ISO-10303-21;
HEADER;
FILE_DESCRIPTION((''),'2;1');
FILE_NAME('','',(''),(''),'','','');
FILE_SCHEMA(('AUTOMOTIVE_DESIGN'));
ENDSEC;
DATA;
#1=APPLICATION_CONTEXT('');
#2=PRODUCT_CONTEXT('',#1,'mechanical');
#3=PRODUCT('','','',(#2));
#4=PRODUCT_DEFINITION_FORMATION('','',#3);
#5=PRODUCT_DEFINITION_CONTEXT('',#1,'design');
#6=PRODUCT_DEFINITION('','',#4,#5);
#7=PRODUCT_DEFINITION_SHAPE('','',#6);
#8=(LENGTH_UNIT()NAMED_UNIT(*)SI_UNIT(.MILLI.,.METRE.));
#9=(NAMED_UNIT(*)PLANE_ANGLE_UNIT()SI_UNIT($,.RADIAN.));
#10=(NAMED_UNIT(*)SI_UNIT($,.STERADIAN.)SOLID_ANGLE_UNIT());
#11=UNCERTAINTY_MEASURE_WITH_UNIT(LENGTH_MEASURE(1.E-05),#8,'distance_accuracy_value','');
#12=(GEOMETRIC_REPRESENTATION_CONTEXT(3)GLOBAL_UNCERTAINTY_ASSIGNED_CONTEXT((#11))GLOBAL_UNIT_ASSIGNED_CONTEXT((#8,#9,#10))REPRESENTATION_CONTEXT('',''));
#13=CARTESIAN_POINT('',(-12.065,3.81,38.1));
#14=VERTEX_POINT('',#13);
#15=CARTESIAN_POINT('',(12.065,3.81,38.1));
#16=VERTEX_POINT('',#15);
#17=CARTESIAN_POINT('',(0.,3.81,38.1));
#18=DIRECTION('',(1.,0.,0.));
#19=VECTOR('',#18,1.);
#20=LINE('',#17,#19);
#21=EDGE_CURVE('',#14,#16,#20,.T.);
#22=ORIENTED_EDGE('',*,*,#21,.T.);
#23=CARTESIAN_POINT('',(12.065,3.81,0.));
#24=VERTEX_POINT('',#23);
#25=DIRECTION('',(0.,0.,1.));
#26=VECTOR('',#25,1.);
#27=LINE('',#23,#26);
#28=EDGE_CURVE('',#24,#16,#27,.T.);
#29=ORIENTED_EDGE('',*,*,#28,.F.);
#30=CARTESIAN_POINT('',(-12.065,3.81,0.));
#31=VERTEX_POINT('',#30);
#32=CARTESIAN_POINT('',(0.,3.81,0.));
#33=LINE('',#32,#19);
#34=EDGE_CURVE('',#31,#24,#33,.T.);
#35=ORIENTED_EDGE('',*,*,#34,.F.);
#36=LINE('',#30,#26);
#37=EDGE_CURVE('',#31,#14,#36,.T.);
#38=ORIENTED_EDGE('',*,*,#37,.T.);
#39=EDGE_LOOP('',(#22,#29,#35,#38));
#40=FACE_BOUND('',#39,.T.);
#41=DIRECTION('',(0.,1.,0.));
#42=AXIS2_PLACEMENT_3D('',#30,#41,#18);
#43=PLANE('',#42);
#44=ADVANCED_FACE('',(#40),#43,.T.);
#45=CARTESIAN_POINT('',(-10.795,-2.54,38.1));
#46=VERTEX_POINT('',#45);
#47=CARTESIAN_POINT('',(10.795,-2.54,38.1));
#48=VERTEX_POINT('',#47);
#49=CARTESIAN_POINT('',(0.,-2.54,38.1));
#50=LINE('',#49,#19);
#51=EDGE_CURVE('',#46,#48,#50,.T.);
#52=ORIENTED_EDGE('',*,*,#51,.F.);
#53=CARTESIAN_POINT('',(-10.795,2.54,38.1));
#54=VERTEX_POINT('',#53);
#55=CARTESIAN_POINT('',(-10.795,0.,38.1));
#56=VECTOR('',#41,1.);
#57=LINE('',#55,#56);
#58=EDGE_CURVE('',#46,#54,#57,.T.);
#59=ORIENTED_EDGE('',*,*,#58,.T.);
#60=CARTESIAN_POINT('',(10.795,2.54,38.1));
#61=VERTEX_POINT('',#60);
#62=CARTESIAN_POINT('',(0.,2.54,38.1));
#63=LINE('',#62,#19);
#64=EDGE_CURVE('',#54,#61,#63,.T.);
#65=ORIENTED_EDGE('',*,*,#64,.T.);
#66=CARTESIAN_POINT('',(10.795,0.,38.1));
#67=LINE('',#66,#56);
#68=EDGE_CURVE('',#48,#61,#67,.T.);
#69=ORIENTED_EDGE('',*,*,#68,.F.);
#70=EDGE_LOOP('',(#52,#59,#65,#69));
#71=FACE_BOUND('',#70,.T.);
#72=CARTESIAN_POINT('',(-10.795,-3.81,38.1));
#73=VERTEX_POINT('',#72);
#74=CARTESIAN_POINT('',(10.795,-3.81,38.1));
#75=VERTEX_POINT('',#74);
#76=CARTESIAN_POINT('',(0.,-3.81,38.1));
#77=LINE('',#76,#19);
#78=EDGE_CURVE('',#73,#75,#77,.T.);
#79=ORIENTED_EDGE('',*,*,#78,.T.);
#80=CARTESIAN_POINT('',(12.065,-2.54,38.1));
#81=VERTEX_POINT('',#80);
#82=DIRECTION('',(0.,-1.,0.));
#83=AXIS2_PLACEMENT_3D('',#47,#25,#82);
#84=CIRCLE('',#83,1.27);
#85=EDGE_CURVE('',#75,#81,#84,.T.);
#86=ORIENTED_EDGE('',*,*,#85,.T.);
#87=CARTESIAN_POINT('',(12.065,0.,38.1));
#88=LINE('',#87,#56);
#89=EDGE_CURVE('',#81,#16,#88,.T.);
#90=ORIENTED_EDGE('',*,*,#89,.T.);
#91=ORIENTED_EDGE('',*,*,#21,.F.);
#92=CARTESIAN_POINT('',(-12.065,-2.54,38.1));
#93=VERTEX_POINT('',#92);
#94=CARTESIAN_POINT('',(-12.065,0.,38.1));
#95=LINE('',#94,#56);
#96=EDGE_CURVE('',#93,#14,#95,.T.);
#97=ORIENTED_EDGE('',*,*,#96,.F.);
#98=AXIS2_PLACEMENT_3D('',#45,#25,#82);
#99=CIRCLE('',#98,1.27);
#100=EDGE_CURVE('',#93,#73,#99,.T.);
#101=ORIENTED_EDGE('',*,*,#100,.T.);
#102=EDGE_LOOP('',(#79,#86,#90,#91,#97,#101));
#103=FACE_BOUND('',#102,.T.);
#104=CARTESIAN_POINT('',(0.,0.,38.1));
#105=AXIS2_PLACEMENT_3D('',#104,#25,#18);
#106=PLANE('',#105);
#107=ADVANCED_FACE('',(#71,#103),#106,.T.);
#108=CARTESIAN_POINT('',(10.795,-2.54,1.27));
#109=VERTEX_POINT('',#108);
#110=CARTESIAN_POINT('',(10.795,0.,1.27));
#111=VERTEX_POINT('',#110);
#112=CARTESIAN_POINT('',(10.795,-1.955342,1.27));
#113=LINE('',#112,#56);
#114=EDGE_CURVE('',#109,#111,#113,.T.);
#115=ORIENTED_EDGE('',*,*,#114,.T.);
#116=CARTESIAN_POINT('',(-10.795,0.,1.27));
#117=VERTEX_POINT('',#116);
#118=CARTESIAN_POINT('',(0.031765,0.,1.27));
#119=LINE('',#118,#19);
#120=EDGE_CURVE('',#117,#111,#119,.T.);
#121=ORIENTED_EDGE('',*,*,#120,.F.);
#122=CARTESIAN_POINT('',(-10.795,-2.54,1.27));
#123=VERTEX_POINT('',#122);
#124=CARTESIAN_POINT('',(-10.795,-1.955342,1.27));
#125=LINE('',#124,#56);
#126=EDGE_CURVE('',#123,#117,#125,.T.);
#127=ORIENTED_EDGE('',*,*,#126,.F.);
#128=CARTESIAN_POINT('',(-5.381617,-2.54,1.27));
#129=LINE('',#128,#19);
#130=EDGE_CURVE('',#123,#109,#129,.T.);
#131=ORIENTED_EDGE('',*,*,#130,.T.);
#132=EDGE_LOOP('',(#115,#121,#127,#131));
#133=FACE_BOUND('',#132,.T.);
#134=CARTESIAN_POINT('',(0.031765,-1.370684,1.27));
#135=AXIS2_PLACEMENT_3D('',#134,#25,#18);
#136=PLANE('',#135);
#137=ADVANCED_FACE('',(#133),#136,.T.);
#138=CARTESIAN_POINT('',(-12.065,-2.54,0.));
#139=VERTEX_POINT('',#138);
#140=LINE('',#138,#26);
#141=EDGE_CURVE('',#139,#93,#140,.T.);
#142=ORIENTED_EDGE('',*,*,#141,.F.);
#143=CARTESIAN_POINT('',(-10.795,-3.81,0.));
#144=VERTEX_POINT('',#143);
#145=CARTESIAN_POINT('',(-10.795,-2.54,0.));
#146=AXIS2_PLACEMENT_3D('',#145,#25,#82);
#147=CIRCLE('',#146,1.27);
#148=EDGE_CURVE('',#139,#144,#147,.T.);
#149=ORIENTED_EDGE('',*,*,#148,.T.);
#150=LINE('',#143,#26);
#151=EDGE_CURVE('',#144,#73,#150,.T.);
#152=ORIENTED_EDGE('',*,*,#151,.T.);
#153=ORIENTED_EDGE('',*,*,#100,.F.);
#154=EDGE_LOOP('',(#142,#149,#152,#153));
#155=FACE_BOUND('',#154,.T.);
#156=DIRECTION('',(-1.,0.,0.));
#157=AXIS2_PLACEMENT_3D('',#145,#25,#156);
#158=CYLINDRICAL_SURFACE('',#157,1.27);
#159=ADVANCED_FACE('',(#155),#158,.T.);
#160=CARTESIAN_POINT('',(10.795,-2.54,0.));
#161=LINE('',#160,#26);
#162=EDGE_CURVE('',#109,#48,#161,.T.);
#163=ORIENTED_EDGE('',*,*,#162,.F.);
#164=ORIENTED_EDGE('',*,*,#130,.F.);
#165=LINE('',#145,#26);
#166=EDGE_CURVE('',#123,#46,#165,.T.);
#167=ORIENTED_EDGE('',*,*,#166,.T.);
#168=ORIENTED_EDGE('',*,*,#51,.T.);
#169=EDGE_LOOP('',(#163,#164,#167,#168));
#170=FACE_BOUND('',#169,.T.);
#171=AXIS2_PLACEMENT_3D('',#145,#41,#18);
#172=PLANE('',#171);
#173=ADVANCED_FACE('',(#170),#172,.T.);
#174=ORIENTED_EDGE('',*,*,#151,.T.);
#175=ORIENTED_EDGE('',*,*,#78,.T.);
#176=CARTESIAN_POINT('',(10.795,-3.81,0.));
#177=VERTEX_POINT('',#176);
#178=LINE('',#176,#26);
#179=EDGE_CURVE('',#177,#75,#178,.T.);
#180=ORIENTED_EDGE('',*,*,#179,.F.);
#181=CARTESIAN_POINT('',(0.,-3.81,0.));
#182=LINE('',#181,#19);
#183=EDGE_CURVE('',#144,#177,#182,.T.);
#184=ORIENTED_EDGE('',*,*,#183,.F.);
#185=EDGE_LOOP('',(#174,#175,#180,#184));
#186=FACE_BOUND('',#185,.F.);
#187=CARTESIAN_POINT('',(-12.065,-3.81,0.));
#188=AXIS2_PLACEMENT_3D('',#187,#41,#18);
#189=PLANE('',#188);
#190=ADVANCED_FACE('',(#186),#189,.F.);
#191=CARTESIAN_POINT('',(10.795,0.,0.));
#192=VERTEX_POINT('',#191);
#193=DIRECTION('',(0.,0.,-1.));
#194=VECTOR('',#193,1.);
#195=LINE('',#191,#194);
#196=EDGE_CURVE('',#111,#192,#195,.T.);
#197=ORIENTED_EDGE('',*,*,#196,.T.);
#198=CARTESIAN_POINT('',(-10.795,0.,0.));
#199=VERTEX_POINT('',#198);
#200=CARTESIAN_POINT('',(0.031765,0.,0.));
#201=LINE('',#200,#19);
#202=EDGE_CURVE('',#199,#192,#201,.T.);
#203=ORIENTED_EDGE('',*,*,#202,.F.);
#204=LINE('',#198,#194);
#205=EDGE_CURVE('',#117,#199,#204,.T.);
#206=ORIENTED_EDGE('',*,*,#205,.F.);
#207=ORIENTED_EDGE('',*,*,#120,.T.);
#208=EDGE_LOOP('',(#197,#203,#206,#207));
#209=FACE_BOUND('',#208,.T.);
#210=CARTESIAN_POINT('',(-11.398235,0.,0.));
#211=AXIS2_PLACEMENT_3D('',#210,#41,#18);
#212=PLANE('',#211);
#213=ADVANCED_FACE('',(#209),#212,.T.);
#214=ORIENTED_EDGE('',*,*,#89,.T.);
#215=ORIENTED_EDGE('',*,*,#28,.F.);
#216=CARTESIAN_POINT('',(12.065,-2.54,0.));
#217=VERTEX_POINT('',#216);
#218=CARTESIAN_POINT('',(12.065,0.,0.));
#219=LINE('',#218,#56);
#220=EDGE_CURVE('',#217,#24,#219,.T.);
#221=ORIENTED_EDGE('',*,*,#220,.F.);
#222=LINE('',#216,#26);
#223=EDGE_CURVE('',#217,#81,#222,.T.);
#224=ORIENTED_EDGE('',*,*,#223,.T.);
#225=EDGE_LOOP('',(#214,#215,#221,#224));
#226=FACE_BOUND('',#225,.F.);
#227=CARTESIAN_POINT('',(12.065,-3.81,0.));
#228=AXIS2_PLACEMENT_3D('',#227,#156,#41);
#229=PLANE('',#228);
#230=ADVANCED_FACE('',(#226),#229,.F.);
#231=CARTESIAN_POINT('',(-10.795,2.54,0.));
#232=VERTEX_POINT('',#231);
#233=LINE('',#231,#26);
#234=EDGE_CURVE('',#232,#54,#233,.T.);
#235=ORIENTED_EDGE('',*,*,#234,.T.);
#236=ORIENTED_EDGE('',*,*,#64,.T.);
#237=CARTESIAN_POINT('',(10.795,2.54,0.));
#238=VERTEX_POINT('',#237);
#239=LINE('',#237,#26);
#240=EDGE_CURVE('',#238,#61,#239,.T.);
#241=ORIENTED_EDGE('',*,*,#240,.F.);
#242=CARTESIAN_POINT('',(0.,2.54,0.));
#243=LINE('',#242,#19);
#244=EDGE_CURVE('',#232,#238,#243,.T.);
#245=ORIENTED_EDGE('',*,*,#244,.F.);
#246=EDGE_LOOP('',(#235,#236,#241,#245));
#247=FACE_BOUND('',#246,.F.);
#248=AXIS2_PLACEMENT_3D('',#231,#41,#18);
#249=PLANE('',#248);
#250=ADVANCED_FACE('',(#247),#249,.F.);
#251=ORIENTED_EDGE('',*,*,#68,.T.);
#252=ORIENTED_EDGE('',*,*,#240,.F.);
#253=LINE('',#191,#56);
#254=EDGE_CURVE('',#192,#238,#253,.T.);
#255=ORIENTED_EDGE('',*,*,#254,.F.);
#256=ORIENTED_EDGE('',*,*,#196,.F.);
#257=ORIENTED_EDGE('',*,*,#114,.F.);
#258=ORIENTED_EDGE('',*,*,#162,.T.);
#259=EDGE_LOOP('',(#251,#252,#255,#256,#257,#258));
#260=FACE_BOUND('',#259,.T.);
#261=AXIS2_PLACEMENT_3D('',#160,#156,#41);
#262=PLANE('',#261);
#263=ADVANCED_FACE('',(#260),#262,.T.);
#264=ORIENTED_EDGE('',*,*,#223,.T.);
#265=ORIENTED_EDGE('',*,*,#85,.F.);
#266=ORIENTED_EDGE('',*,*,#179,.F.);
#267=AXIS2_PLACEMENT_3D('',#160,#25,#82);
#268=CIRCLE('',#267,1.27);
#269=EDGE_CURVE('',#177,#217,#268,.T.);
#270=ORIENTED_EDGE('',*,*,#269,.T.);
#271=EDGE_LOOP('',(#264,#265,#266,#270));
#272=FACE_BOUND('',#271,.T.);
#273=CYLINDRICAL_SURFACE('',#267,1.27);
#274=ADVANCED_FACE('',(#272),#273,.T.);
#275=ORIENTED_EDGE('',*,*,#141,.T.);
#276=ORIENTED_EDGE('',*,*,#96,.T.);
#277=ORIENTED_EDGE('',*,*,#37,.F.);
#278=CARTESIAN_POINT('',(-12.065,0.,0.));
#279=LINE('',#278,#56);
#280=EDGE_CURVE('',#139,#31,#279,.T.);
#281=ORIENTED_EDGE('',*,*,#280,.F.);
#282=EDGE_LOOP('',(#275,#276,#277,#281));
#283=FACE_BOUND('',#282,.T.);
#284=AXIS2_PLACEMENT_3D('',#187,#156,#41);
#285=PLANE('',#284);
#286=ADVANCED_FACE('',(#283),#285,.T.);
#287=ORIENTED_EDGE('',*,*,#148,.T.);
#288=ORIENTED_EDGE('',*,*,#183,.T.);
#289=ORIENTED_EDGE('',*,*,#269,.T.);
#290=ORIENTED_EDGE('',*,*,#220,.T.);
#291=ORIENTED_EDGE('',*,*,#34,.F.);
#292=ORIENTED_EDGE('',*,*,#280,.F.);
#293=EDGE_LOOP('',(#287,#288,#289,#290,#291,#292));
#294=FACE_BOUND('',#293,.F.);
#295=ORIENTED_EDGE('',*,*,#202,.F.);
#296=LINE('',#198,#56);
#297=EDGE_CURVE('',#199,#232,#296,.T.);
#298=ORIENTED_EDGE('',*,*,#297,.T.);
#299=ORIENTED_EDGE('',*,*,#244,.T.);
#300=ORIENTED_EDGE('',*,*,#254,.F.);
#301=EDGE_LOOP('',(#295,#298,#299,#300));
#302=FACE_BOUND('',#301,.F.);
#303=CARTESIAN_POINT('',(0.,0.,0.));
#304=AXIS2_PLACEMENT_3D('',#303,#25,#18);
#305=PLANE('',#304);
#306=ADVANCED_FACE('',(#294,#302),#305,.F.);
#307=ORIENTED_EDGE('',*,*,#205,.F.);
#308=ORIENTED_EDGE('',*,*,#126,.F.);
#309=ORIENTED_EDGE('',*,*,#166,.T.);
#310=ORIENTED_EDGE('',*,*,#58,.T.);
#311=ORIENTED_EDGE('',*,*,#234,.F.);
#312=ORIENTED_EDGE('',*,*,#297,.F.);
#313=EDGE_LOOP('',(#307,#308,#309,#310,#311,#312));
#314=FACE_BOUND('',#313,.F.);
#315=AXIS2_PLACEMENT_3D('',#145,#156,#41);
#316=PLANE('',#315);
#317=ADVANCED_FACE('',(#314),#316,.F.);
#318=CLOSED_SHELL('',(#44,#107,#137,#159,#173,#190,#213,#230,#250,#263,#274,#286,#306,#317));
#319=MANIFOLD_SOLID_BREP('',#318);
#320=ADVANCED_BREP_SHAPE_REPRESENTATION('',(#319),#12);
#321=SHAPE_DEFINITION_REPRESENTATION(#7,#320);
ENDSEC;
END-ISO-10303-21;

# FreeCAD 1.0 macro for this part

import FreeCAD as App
import Part
import Sketcher

V = App.Vector
Q = App.Units.Quantity


def edges_at(feature, points):
    """Names of the edges that pass closest to the given points."""
    edges = feature.Shape.Edges
    near = lambda p: min(range(len(edges)), key=lambda i: edges[i].distToShape(Part.Vertex(*p))[0])
    return sorted({f"Edge{near(p) + 1}" for p in points})

doc = App.newDocument("Part")
body = doc.addObject("PartDesign::Body", "Body")

# Sketch on XY plane
sketch1 = body.newObject("Sketcher::SketchObject", "Sketch")
sketch1.AttachmentSupport = (doc.getObject("XY_Plane"), [""])
sketch1.MapMode = "FlatFace"
sketch1.addGeometry([
    Part.LineSegment(V(-12, 4, 0), V(-12, -4, 0)),  # 0
    Part.LineSegment(V(-12, -4, 0), V(12, -4, 0)),  # 1
    Part.LineSegment(V(12, -4, 0), V(12, 4, 0)),  # 2
    Part.LineSegment(V(12, 4, 0), V(-12, 4, 0)),  # 3
    Part.LineSegment(V(11, -3, 0), V(-11, -3, 0)),  # 4
    Part.LineSegment(V(-11, -3, 0), V(-11, 3, 0)),  # 5
    Part.LineSegment(V(-11, 3, 0), V(11, 3, 0)),  # 6
    Part.LineSegment(V(11, 3, 0), V(11, -3, 0)),  # 7
], False)
sketch1.addConstraint([
    Sketcher.Constraint("Coincident", 0, 2, 1, 1),
    Sketcher.Constraint("Coincident", 1, 2, 2, 1),
    Sketcher.Constraint("Coincident", 2, 2, 3, 1),
    Sketcher.Constraint("Coincident", 3, 2, 0, 1),
    Sketcher.Constraint("Coincident", 4, 2, 5, 1),
    Sketcher.Constraint("Coincident", 5, 2, 6, 1),
    Sketcher.Constraint("Coincident", 6, 2, 7, 1),
    Sketcher.Constraint("Coincident", 7, 2, 4, 1),
    Sketcher.Constraint("Vertical", 0),
    Sketcher.Constraint("Horizontal", 1),
    Sketcher.Constraint("Vertical", 2),
    Sketcher.Constraint("Horizontal", 3),
    Sketcher.Constraint("Horizontal", 4),
    Sketcher.Constraint("Vertical", 5),
    Sketcher.Constraint("Horizontal", 6),
    Sketcher.Constraint("Vertical", 7),
    Sketcher.Constraint("Symmetric", 0, 2, 2, 2, -1, 1),
    Sketcher.Constraint("Symmetric", 4, 2, 6, 2, -1, 1),
    Sketcher.Constraint("DistanceY", 0, 2, 0, 1, Q("0.3 in")),
    Sketcher.Constraint("DistanceY", 5, 1, 5, 2, Q("0.2 in")),
    Sketcher.Constraint("DistanceX", 1, 1, 1, 2, Q("0.95 in")),
    Sketcher.Constraint("DistanceX", 4, 2, 4, 1, Q("0.85 in")),
])
pad1 = body.newObject("PartDesign::Pad", "Pad")
pad1.Profile = sketch1
pad1.Length = Q("1.5 in")

# Sketch on XY plane
sketch2 = body.newObject("Sketcher::SketchObject", "Sketch001")
sketch2.AttachmentSupport = (doc.getObject("XY_Plane"), [""])
sketch2.MapMode = "FlatFace"
sketch2.addGeometry([
    Part.LineSegment(V(-11.4, 0, 0), V(-11.4, -2.7, 0)),
    Part.LineSegment(V(-11.4, -2.7, 0), V(11.5, -2.7, 0)),
    Part.LineSegment(V(11.5, -2.7, 0), V(11.5, 0, 0)),
    Part.LineSegment(V(11.5, 0, 0), V(-11.4, 0, 0)),
], False)
sketch2.addConstraint([
    Sketcher.Constraint("Coincident", 0, 2, 1, 1),
    Sketcher.Constraint("Coincident", 1, 2, 2, 1),
    Sketcher.Constraint("Coincident", 2, 2, 3, 1),
    Sketcher.Constraint("Coincident", 3, 2, 0, 1),
    Sketcher.Constraint("Vertical", 0),
    Sketcher.Constraint("Horizontal", 1),
    Sketcher.Constraint("Vertical", 2),
    Sketcher.Constraint("Horizontal", 3),
    Sketcher.Constraint("PointOnObject", 2, 2, -1),
    Sketcher.Constraint("DistanceX", 1, 1, 1, 2, Q("0.9 in")),
    Sketcher.Constraint("DistanceY", 0, 2, 0, 1, 2.741368),
    Sketcher.Constraint("DistanceX", 0, 2, -1, 1, 11.398235),
])
pad2 = body.newObject("PartDesign::Pad", "Pad001")
pad2.Profile = sketch2
pad2.Length = Q("0.05 in")
doc.recompute()

fillet = body.newObject("PartDesign::Fillet", "Fillet")
fillet.Base = (pad2, edges_at(pad2, [(-12.065, -3.81, 19.05), (12.065, -3.81, 19.05)]))
fillet.Radius = Q("0.05 in")

doc.recompute()
